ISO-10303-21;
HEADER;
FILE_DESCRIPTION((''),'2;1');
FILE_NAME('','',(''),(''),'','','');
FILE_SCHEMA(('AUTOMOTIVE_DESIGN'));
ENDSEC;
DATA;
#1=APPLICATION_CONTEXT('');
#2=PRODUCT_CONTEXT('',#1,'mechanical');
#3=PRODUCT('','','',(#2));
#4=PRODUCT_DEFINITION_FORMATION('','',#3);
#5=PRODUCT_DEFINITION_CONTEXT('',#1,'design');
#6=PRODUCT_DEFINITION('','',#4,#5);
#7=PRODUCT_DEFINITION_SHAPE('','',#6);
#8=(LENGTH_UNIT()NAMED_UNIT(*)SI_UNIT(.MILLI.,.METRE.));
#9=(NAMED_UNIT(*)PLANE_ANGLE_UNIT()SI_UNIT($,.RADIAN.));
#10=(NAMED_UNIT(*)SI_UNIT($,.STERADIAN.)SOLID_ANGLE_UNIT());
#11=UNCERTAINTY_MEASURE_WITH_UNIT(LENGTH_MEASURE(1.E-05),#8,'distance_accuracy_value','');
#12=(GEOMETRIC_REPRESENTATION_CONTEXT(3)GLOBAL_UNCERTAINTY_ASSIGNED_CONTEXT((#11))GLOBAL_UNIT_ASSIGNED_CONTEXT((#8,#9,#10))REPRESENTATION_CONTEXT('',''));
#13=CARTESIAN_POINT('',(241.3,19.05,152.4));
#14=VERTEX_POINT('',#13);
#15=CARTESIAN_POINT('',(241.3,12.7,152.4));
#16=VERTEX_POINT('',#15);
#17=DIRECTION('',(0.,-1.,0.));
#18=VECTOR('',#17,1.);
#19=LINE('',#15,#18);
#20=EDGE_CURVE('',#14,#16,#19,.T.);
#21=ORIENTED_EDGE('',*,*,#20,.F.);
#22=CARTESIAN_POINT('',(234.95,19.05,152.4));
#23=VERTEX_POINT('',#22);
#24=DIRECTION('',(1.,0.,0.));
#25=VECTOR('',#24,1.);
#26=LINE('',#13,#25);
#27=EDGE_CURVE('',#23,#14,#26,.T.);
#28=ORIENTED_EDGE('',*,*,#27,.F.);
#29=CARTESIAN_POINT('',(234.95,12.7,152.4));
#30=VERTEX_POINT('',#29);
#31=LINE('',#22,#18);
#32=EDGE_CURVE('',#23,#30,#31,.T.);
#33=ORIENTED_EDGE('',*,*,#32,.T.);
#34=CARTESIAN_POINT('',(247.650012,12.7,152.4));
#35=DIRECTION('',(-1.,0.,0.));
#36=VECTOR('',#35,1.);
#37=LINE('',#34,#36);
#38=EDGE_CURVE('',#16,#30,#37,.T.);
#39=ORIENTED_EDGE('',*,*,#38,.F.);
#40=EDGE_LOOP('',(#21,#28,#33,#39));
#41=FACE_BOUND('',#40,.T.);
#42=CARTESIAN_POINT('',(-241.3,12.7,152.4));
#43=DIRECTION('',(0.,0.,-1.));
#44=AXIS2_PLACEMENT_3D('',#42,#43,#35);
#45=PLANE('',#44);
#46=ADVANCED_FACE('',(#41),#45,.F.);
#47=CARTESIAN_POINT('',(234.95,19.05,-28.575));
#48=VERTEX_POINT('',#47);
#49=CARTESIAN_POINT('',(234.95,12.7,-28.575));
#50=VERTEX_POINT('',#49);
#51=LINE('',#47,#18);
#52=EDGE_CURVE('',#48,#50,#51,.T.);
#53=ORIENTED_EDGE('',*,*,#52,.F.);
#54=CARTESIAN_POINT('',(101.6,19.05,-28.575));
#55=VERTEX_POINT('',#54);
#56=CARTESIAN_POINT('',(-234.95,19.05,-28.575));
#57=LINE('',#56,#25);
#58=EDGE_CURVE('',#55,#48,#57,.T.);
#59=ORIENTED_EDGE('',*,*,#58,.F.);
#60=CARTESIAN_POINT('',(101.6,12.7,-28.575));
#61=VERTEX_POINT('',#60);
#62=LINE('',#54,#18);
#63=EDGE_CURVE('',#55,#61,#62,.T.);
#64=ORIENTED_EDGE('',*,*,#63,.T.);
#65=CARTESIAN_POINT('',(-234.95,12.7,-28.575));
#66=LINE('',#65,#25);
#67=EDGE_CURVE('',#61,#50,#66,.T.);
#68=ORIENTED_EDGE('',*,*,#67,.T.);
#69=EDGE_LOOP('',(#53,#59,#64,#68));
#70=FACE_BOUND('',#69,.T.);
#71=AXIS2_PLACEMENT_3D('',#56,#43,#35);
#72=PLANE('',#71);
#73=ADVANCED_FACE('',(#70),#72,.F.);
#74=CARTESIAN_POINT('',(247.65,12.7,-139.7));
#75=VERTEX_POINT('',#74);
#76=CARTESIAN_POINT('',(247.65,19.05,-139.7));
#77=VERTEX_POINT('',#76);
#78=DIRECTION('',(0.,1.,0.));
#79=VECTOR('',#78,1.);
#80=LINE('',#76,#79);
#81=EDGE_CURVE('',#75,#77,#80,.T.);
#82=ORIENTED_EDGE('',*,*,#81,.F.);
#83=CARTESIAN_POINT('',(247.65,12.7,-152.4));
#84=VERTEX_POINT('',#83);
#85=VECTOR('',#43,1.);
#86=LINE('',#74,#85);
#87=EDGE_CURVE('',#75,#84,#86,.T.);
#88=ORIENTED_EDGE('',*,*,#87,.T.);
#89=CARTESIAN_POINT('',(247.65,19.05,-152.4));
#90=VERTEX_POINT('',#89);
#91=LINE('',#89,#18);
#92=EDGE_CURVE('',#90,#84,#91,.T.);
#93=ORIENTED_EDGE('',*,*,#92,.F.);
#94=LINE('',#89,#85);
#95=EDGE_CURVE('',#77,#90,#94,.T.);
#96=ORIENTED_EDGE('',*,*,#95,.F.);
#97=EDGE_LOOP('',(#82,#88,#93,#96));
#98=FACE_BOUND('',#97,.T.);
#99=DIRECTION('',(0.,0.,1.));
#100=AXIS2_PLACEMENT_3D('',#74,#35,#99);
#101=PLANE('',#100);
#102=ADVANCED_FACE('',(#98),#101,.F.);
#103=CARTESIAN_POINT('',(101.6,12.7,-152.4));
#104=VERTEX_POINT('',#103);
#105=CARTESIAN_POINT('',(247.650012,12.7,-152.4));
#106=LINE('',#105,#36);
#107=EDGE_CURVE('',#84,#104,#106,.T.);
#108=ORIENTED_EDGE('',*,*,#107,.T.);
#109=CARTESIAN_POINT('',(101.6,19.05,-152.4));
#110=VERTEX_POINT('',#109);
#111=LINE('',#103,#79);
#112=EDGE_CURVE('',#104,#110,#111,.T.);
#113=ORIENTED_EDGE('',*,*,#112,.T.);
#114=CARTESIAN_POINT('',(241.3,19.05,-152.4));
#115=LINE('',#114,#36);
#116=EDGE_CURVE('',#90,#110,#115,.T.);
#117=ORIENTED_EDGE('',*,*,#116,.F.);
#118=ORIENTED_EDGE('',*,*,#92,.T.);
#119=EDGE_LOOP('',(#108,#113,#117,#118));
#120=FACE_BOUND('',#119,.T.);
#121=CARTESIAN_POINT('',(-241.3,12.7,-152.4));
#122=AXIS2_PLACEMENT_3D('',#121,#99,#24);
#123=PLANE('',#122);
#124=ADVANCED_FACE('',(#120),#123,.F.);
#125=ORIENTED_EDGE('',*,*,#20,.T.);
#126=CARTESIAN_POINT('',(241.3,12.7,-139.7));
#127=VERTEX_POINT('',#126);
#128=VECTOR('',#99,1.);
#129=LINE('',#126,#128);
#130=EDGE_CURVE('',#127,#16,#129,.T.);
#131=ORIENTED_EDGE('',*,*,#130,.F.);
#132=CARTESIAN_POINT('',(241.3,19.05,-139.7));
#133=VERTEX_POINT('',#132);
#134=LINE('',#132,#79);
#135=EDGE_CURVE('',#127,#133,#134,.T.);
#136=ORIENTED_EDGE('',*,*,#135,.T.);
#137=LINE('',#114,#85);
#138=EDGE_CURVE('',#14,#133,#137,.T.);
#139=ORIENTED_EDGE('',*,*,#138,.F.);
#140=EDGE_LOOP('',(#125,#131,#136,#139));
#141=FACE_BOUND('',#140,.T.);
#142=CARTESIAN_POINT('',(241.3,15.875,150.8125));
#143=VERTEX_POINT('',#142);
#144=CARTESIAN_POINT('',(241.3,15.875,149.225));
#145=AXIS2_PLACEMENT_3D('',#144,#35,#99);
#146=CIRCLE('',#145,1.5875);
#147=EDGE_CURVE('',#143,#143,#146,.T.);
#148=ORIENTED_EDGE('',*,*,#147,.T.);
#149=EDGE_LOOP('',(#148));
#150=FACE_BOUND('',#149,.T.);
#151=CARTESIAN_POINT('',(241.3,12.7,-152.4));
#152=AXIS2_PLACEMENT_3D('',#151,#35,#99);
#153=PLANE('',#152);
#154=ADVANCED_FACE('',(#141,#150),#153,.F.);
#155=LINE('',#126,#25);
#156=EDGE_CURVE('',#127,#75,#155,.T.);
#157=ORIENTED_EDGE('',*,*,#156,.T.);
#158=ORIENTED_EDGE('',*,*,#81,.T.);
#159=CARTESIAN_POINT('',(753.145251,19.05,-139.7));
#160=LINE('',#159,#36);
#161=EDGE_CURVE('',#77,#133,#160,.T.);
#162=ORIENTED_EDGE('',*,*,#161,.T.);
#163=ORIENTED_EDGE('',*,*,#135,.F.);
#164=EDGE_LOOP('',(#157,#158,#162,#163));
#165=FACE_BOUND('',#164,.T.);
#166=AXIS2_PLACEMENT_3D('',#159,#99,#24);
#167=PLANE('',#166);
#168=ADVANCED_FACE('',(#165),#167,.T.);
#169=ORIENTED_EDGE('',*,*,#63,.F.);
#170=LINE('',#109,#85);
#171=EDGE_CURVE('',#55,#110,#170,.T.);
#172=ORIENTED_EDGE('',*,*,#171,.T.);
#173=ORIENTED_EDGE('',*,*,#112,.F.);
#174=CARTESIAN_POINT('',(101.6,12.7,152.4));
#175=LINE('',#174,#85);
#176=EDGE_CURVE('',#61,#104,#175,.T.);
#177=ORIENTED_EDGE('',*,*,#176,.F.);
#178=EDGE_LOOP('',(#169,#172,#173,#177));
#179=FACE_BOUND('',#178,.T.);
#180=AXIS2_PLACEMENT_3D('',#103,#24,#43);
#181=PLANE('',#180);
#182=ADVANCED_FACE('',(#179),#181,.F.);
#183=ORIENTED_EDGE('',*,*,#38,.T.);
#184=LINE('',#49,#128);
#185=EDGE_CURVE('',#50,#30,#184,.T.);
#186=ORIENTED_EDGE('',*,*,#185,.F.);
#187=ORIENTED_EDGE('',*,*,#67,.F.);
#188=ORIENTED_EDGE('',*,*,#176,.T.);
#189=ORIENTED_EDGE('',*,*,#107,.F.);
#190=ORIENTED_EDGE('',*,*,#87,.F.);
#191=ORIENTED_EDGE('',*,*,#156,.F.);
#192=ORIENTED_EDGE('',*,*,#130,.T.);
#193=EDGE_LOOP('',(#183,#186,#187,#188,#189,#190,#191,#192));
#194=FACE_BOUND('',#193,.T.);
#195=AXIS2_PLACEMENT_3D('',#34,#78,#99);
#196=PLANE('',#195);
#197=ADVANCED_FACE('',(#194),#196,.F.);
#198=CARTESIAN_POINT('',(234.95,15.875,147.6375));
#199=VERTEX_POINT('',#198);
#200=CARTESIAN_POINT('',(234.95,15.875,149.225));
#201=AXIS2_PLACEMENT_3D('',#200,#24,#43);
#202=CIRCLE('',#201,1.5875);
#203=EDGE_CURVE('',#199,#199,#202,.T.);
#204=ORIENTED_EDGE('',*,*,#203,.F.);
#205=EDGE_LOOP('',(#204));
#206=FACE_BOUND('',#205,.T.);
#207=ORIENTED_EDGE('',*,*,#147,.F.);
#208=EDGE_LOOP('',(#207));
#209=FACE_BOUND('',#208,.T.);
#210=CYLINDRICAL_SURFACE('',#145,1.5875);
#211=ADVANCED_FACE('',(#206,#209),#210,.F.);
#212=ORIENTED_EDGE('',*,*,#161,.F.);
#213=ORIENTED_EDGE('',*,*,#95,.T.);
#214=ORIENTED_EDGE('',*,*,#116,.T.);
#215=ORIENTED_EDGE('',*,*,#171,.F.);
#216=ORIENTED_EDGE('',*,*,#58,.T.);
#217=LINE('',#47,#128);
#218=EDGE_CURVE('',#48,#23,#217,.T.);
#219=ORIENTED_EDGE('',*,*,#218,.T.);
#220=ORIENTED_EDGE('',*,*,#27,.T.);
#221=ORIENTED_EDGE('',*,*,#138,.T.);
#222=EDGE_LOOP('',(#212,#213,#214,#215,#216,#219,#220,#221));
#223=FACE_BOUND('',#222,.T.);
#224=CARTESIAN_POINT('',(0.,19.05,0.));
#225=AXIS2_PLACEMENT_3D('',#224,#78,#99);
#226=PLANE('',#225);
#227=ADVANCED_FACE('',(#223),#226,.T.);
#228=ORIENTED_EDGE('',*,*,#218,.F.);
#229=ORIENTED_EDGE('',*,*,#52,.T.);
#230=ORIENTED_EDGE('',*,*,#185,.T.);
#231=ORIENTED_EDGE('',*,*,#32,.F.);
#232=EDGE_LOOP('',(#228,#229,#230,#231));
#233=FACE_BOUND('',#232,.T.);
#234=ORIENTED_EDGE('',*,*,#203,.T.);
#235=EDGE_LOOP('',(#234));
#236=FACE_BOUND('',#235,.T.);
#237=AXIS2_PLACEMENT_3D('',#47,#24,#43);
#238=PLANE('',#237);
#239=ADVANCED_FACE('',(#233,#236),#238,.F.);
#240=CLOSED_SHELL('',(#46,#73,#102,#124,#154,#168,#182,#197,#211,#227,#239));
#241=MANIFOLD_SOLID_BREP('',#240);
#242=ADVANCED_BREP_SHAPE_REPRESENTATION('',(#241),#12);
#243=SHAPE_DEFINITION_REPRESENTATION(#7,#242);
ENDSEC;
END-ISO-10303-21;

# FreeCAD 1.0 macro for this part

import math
import FreeCAD as App
import Part
import Sketcher
from FreeCAD import Vector
Q = App.Units.Quantity


def add_polygon(sketch, points):
    """Adds a closed chain of lines whose ends are joined by coincident constraints."""
    first, n = sketch.GeometryCount, len(points)
    for a, b in zip(points, points[1:] + points[:1]):
        sketch.addGeometry(Part.LineSegment(App.Vector(*a, 0), App.Vector(*b, 0)), False)
    for i in range(n):
        sketch.addConstraint(Sketcher.Constraint("Coincident", first + i, 2, first + (i + 1) % n, 1))

doc = App.newDocument("Part")
body = doc.addObject("PartDesign::Body", "Body")

sketch1 = body.newObject("Sketcher::SketchObject", "Sketch")
sketch1.AttachmentSupport = (doc.getObject("XZ_Plane"), [""])
sketch1.MapMode = "FlatFace"
add_polygon(sketch1, [(-241, -152), (-241, 152), (241, 152), (241, -152)])
sketch1.addConstraint(Sketcher.Constraint("Vertical", 0))
sketch1.addConstraint(Sketcher.Constraint("Horizontal", 1))
sketch1.addConstraint(Sketcher.Constraint("Vertical", 2))
sketch1.addConstraint(Sketcher.Constraint("Horizontal", 3))
sketch1.addConstraint(Sketcher.Constraint("Symmetric", 0, 2, 2, 2, -1, 1))
sketch1.addConstraint(Sketcher.Constraint("DistanceX", 1, 1, 1, 2, Q("19 in")))
sketch1.addConstraint(Sketcher.Constraint("DistanceY", 0, 1, 0, 2, Q("12 in")))
pad1 = body.newObject("PartDesign::Pad", "Pad")
pad1.Profile = sketch1
pad1.Length = Q("0.5 in")
pad1.Reversed = True

sketch2 = body.newObject("Sketcher::SketchObject", "Sketch001")
sketch2.AttachmentSupport = (doc.getObject("XZ_Plane"), [""])
sketch2.MapMode = "FlatFace"
sketch2.AttachmentOffset = App.Placement(Vector(0, 0, -0.5 * 25.4), App.Rotation())
add_polygon(sketch2, [(241, -152), (-241, -152), (-241, 152), (-235, 152), (-235, -29), (235, -29), (235, 152), (241, 152)])
sketch2.addConstraint(Sketcher.Constraint("Horizontal", 0))
sketch2.addConstraint(Sketcher.Constraint("Vertical", 1))
sketch2.addConstraint(Sketcher.Constraint("Horizontal", 2))
sketch2.addConstraint(Sketcher.Constraint("Vertical", 3))
sketch2.addConstraint(Sketcher.Constraint("Horizontal", 4))
sketch2.addConstraint(Sketcher.Constraint("Vertical", 5))
sketch2.addConstraint(Sketcher.Constraint("Horizontal", 6))
sketch2.addConstraint(Sketcher.Constraint("Vertical", 7))
sketch2.addConstraint(Sketcher.Constraint("Symmetric", 0, 2, 6, 2, -1, 1))
sketch2.addConstraint(Sketcher.Constraint("Symmetric", 2, 2, 5, 2, -2))
sketch2.addConstraint(Sketcher.Constraint("DistanceX", 0, 2, 0, 1, Q("19 in")))
sketch2.addConstraint(Sketcher.Constraint("DistanceY", 1, 1, 1, 2, Q("12 in")))
sketch2.addConstraint(Sketcher.Constraint("DistanceX", 4, 1, 4, 2, Q("18.5 in")))
sketch2.addConstraint(Sketcher.Constraint("DistanceY", 3, 2, 3, 1, Q("7.125 in")))
pad2 = body.newObject("PartDesign::Pad", "Pad001")
pad2.Profile = sketch2
pad2.Length = Q("0.25 in")
pad2.Reversed = True

sketch3 = body.newObject("Sketcher::SketchObject", "Sketch002")
sketch3.AttachmentSupport = (doc.getObject("YZ_Plane"), [""])
sketch3.MapMode = "FlatFace"
sketch3.AttachmentOffset = App.Placement(Vector(0, 0, -9.5 * 25.4), App.Rotation())
sketch3.addGeometry(Part.Circle(Vector(15.9, 149.2, 0), Vector(0, 0, 1), 1.6), False)
sketch3.addConstraint(Sketcher.Constraint("Diameter", 0, Q("0.125 in")))
sketch3.addConstraint(Sketcher.Constraint("DistanceX", -1, 1, 0, 3, Q("0.625 in")))
sketch3.addConstraint(Sketcher.Constraint("DistanceY", -1, 1, 0, 3, Q("5.875 in")))
pocket1 = body.newObject("PartDesign::Pocket", "Pocket")
pocket1.Profile = sketch3
pocket1.Type = "ThroughAll"
pocket1.Reversed = True

sketch4 = body.newObject("Sketcher::SketchObject", "Sketch003")
sketch4.AttachmentSupport = (doc.getObject("XY_Plane"), [""])
sketch4.MapMode = "FlatFace"
sketch4.AttachmentOffset = App.Placement(Vector(0, 0, 6 * 25.4), App.Rotation())
add_polygon(sketch4, [(-248, 13), (-248, 0), (-241, 0), (-241, 13)])
sketch4.addConstraint(Sketcher.Constraint("Vertical", 0))
sketch4.addConstraint(Sketcher.Constraint("Horizontal", 1))
sketch4.addConstraint(Sketcher.Constraint("Vertical", 2))
sketch4.addConstraint(Sketcher.Constraint("Horizontal", 3))
sketch4.addConstraint(Sketcher.Constraint("PointOnObject", 0, 2, -1))
sketch4.addConstraint(Sketcher.Constraint("DistanceY", 0, 2, 0, 1, Q("0.5 in")))
sketch4.addConstraint(Sketcher.Constraint("DistanceX", 1, 1, 1, 2, Q("0.25 in")))
sketch4.addConstraint(Sketcher.Constraint("DistanceX", 1, 2, -1, 1, Q("9.5 in")))
pad3 = body.newObject("PartDesign::Pad", "Pad002")
pad3.Profile = sketch4
pad3.Length = Q("11.5 in")
pad3.Reversed = True

sketch5 = body.newObject("Sketcher::SketchObject", "Sketch004")
sketch5.AttachmentSupport = (doc.getObject("YZ_Plane"), [""])
sketch5.MapMode = "FlatFace"
sketch5.AttachmentOffset = App.Placement(Vector(0, 0, -9.5 * 25.4), App.Rotation())
add_polygon(sketch5, [(19, -152), (0, -152), (0, -140), (19, -140)])
sketch5.addConstraint(Sketcher.Constraint("Horizontal", 0))
sketch5.addConstraint(Sketcher.Constraint("Vertical", 1))
sketch5.addConstraint(Sketcher.Constraint("Horizontal", 2))
sketch5.addConstraint(Sketcher.Constraint("Vertical", 3))
sketch5.addConstraint(Sketcher.Constraint("PointOnObject", 0, 2, -2))
sketch5.addConstraint(Sketcher.Constraint("DistanceY", 1, 1, 1, 2, Q("0.5 in")))
sketch5.addConstraint(Sketcher.Constraint("DistanceY", 0, 2, -1, 1, Q("6 in")))
sketch5.addConstraint(Sketcher.Constraint("DistanceX", 0, 2, 0, 1, Q("0.75 in")))
pad4 = body.newObject("PartDesign::Pad", "Pad003")
pad4.Profile = sketch5
pad4.Length = Q("0.25 in")
pad4.Reversed = True
doc.recompute()

mirrored = body.newObject("PartDesign::Mirrored", "Mirrored")
mirrored.Originals = [pad3, pad4]
mirrored.MirrorPlane = (doc.getObject("YZ_Plane"), [""])
body.Tip = mirrored

sketch6 = body.newObject("Sketcher::SketchObject", "Sketch005")
sketch6.AttachmentSupport = (doc.getObject("YZ_Plane"), [""])
sketch6.MapMode = "FlatFace"
sketch6.AttachmentOffset = App.Placement(Vector(0, 0, -9.75 * 25.4), App.Rotation())
sketch6.addGeometry(Part.LineSegment(Vector(2.5, 128.3, 0), Vector(2.5, 147.3, 0)), False)
sketch6.addGeometry(Part.ArcOfCircle(Part.Circle(Vector(6.3, 147.3, 0), Vector(0, 0, 1), 3.8), math.radians(0), math.radians(180)), False)
sketch6.addGeometry(Part.LineSegment(Vector(10.2, 147.3, 0), Vector(10.2, 128.3, 0)), False)
sketch6.addGeometry(Part.ArcOfCircle(Part.Circle(Vector(6.3, 128.3, 0), Vector(0, 0, 1), 3.8), math.radians(180), math.radians(360)), False)
sketch6.addConstraint(Sketcher.Constraint("Tangent", 0, 2, 1, 2))
sketch6.addConstraint(Sketcher.Constraint("Tangent", 1, 1, 2, 1))
sketch6.addConstraint(Sketcher.Constraint("Tangent", 2, 2, 3, 2))
sketch6.addConstraint(Sketcher.Constraint("Tangent", 3, 1, 0, 1))
sketch6.addConstraint(Sketcher.Constraint("Vertical", 0))
sketch6.addConstraint(Sketcher.Constraint("Vertical", 2))
sketch6.addConstraint(Sketcher.Constraint("Radius", 1, Q("0.15 in")))
sketch6.addConstraint(Sketcher.Constraint("DistanceY", 0, 1, 0, 2, Q("0.75 in")))
sketch6.addConstraint(Sketcher.Constraint("DistanceY", -1, 1, 1, 3, Q("5.8 in")))
sketch6.addConstraint(Sketcher.Constraint("DistanceX", -1, 1, 0, 2, Q("0.1 in")))
pocket2 = body.newObject("PartDesign::Pocket", "Pocket001")
pocket2.Profile = sketch6
pocket2.Length = Q("1 in")
pocket2.Reversed = True

sketch7 = body.newObject("Sketcher::SketchObject", "Sketch006")
sketch7.AttachmentSupport = (doc.getObject("YZ_Plane"), [""])
sketch7.MapMode = "FlatFace"
sketch7.AttachmentOffset = App.Placement(Vector(0, 0, 9.75 * 25.4), App.Rotation())
sketch7.addGeometry(Part.LineSegment(Vector(2.5, 128.3, 0), Vector(2.5, 147.3, 0)), False)
sketch7.addGeometry(Part.ArcOfCircle(Part.Circle(Vector(6.3, 147.3, 0), Vector(0, 0, 1), 3.8), math.radians(0), math.radians(180)), False)
sketch7.addGeometry(Part.LineSegment(Vector(10.2, 147.3, 0), Vector(10.2, 128.3, 0)), False)
sketch7.addGeometry(Part.ArcOfCircle(Part.Circle(Vector(6.3, 128.3, 0), Vector(0, 0, 1), 3.8), math.radians(180), math.radians(360)), False)
sketch7.addConstraint(Sketcher.Constraint("Tangent", 0, 2, 1, 2))
sketch7.addConstraint(Sketcher.Constraint("Tangent", 1, 1, 2, 1))
sketch7.addConstraint(Sketcher.Constraint("Tangent", 2, 2, 3, 2))
sketch7.addConstraint(Sketcher.Constraint("Tangent", 3, 1, 0, 1))
sketch7.addConstraint(Sketcher.Constraint("Vertical", 0))
sketch7.addConstraint(Sketcher.Constraint("Vertical", 2))
sketch7.addConstraint(Sketcher.Constraint("Radius", 1, Q("0.15 in")))
sketch7.addConstraint(Sketcher.Constraint("DistanceY", 0, 1, 0, 2, Q("0.75 in")))
sketch7.addConstraint(Sketcher.Constraint("DistanceY", -1, 1, 1, 3, Q("5.8 in")))
sketch7.addConstraint(Sketcher.Constraint("DistanceX", -1, 1, 0, 2, Q("0.1 in")))
pocket3 = body.newObject("PartDesign::Pocket", "Pocket002")
pocket3.Profile = sketch7
pocket3.Length = Q("1 in")

sketch8 = body.newObject("Sketcher::SketchObject", "Sketch007")
sketch8.AttachmentSupport = (doc.getObject("XZ_Plane"), [""])
sketch8.MapMode = "FlatFace"
sketch8.AttachmentOffset = App.Placement(Vector(0, 0, -0.1 * 25.4), App.Rotation())
add_polygon(sketch8, [(-248, 124), (-222, 124), (-222, 141)])
sketch8.addConstraint(Sketcher.Constraint("Horizontal", 0))
sketch8.addConstraint(Sketcher.Constraint("Vertical", 1))
sketch8.addConstraint(Sketcher.Constraint("DistanceX", 0, 1, 0, 2, Q("1 in")))
sketch8.addConstraint(Sketcher.Constraint("DistanceY", 1, 1, 1, 2, Q("0.65 in")))
sketch8.addConstraint(Sketcher.Constraint("DistanceY", -1, 1, 0, 2, Q("4.9 in")))
sketch8.addConstraint(Sketcher.Constraint("DistanceX", 0, 2, -1, 1, Q("8.75 in")))
pad5 = body.newObject("PartDesign::Pad", "Pad004")
pad5.Profile = sketch8
pad5.Length = Q("0.3 in")
pad5.Reversed = True
doc.recompute()

mirrored2 = body.newObject("PartDesign::Mirrored", "Mirrored001")
mirrored2.Originals = [pad5]
mirrored2.MirrorPlane = (doc.getObject("YZ_Plane"), [""])
body.Tip = mirrored2

sketch9 = body.newObject("Sketcher::SketchObject", "Sketch008")
sketch9.AttachmentSupport = (doc.getObject("YZ_Plane"), [""])
sketch9.MapMode = "FlatFace"
sketch9.AttachmentOffset = App.Placement(Vector(0, 0, 9.75 * 25.4), App.Rotation())
add_polygon(sketch9, [(13, -152), (0, -152), (0, 152), (13, 152)])
sketch9.addConstraint(Sketcher.Constraint("Horizontal", 0))
sketch9.addConstraint(Sketcher.Constraint("Vertical", 1))
sketch9.addConstraint(Sketcher.Constraint("Horizontal", 2))
sketch9.addConstraint(Sketcher.Constraint("Vertical", 3))
sketch9.addConstraint(Sketcher.Constraint("Symmetric", 0, 2, 1, 2, -1, 1))
sketch9.addConstraint(Sketcher.Constraint("DistanceY", 1, 1, 1, 2, Q("12 in")))
sketch9.addConstraint(Sketcher.Constraint("DistanceX", 0, 2, 0, 1, Q("0.5 in")))
pocket4 = body.newObject("PartDesign::Pocket", "Pocket003")
pocket4.Profile = sketch9
pocket4.Type = "ThroughAll"
pocket4.Midplane = True

sketch10 = body.newObject("Sketcher::SketchObject", "Sketch009")
sketch10.AttachmentSupport = (doc.getObject("XZ_Plane"), [""])
sketch10.MapMode = "FlatFace"
sketch10.AttachmentOffset = App.Placement(Vector(0, 0, -0.75 * 25.4), App.Rotation())
add_polygon(sketch10, [(-284, -152), (-284, 172), (102, 172), (102, -152)])
sketch10.addConstraint(Sketcher.Constraint("Vertical", 0))
sketch10.addConstraint(Sketcher.Constraint("Horizontal", 1))
sketch10.addConstraint(Sketcher.Constraint("Vertical", 2))
sketch10.addConstraint(Sketcher.Constraint("Horizontal", 3))
sketch10.addConstraint(Sketcher.Constraint("DistanceX", -1, 1, 1, 2, Q("4 in")))
sketch10.addConstraint(Sketcher.Constraint("DistanceY", 2, 2, -1, 1, Q("6 in")))
sketch10.addConstraint(Sketcher.Constraint("DistanceX", 1, 1, 1, 2, Q("385.398699 mm")))
sketch10.addConstraint(Sketcher.Constraint("DistanceY", 0, 1, 0, 2, Q("324.595378 mm")))
pocket5 = body.newObject("PartDesign::Pocket", "Pocket004")
pocket5.Profile = sketch10
pocket5.Type = "ThroughAll"
pocket5.Reversed = True

doc.recompute()
